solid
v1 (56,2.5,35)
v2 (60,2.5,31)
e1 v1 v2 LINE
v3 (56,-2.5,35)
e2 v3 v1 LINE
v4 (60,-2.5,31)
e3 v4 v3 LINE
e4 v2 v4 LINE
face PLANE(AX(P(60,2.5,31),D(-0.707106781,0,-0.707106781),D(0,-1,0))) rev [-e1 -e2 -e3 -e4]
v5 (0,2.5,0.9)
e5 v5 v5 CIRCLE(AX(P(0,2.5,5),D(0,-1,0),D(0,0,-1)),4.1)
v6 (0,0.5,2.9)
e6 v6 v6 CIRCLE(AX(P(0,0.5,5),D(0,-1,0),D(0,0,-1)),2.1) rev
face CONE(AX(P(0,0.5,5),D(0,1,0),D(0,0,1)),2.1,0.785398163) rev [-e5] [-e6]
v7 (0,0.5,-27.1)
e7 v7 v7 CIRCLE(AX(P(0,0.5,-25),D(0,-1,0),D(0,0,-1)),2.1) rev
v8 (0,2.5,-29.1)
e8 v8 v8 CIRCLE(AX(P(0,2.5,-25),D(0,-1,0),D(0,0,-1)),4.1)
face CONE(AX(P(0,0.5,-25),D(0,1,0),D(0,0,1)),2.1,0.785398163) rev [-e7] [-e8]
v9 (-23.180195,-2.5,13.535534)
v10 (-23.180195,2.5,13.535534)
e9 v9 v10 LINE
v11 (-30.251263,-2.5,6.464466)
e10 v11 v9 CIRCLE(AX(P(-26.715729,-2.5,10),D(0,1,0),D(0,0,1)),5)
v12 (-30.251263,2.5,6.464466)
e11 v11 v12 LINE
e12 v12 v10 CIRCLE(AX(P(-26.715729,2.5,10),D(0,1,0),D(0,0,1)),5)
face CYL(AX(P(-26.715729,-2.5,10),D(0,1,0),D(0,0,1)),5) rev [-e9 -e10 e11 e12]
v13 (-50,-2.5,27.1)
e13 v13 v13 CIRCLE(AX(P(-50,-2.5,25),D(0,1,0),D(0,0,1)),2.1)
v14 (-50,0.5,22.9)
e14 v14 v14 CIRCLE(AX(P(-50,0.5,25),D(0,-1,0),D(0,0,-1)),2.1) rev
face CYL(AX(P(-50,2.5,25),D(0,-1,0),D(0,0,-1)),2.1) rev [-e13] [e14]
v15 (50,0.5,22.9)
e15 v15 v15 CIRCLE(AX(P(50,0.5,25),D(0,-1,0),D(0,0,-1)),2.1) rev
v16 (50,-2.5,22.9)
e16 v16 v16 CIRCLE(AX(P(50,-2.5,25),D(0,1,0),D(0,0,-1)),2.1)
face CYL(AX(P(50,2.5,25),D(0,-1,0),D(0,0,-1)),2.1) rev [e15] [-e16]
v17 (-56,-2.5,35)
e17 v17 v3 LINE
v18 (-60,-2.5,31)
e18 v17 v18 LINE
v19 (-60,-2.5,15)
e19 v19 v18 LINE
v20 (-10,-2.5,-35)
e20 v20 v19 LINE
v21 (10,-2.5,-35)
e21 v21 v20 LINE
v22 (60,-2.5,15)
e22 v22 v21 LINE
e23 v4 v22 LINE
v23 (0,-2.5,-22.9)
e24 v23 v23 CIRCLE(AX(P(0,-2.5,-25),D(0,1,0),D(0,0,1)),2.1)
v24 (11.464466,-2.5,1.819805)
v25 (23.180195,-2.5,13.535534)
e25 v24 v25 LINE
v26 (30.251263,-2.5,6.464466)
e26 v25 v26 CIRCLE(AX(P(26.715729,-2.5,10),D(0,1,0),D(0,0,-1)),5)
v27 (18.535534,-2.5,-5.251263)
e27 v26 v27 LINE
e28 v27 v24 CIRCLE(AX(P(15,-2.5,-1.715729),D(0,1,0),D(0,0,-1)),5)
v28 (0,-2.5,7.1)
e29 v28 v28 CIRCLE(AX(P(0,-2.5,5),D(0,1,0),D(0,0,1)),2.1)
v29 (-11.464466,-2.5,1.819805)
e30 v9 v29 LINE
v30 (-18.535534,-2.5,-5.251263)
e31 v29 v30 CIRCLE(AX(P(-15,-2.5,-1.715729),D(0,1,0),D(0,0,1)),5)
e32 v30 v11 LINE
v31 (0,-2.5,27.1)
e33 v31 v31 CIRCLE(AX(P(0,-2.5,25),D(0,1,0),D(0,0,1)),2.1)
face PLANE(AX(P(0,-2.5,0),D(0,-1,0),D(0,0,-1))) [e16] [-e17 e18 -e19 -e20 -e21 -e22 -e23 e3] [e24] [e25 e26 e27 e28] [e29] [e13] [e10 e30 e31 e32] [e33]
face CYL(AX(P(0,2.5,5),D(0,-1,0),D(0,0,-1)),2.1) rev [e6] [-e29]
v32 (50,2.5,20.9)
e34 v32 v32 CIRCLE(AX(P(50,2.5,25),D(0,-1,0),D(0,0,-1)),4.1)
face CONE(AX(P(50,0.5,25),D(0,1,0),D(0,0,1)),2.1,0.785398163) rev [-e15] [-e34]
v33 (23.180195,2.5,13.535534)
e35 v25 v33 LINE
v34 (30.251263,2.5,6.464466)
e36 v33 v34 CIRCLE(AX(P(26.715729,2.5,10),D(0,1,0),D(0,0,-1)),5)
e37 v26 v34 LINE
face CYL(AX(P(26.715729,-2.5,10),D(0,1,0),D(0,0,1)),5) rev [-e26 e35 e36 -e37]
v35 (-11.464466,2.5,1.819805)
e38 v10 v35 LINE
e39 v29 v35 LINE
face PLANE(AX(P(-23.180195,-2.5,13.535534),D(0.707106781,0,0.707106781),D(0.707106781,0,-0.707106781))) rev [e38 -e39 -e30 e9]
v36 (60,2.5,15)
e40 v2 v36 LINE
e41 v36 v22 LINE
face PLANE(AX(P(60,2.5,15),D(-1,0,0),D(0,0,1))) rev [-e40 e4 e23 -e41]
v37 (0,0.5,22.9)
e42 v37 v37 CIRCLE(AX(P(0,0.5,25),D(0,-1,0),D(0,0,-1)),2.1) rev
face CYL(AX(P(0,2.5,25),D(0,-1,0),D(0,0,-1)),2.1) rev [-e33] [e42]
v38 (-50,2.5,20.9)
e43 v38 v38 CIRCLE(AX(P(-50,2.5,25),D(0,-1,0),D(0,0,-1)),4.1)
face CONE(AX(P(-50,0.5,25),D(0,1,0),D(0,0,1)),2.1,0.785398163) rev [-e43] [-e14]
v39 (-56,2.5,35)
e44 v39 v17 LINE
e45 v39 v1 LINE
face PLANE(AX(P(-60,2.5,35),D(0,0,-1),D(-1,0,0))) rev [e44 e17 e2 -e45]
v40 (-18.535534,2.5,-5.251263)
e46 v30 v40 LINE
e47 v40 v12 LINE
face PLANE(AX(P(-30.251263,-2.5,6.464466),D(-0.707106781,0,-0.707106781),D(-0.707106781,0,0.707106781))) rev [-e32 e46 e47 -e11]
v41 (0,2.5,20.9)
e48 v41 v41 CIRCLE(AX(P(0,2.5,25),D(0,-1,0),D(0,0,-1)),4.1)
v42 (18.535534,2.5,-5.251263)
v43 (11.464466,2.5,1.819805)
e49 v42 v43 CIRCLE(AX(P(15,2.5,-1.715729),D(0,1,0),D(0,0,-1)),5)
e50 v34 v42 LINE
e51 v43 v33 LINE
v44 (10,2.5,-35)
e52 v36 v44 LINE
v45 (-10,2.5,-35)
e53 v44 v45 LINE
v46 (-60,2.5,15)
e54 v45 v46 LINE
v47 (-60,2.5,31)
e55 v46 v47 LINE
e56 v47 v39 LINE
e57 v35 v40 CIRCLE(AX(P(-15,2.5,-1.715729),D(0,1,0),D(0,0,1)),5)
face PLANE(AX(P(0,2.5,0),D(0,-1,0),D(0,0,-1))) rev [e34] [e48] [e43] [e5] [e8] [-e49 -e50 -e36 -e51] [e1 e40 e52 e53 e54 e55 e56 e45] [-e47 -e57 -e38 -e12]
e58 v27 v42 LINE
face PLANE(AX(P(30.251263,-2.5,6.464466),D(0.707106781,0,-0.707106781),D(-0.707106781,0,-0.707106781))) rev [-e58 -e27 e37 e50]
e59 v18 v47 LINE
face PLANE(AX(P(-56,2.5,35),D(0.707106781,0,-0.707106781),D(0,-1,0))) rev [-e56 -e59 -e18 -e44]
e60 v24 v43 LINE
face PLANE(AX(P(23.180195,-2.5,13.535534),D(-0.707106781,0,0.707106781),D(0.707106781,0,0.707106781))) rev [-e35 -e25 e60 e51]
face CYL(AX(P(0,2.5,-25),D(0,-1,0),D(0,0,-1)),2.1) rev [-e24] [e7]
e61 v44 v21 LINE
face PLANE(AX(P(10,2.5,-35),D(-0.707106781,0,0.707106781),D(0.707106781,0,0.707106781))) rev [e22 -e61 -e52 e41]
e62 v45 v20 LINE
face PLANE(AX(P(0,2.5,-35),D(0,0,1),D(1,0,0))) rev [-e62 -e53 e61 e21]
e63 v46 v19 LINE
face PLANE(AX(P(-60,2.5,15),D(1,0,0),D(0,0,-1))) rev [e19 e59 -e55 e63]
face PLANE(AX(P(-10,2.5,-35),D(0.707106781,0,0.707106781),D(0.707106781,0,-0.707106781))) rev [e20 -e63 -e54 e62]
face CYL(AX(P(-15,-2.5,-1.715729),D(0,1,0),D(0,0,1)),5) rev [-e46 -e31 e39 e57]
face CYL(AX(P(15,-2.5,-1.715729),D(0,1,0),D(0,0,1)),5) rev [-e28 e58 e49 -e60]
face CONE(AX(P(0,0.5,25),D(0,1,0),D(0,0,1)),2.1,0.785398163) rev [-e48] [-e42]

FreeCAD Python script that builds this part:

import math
import FreeCAD as App
import Part
import Sketcher

V = App.Vector
Q = App.Units.Quantity


def edges_at(feature, points):
    """Names of the edges that pass closest to the given points."""
    edges = feature.Shape.Edges
    near = lambda p: min(range(len(edges)), key=lambda i: edges[i].distToShape(Part.Vertex(*p))[0])
    return sorted({f"Edge{near(p) + 1}" for p in points})


def add_polygon(sketch, points):
    """Adds a closed chain of lines whose ends are joined by coincident constraints."""
    first, n = sketch.GeometryCount, len(points)
    for a, b in zip(points, points[1:] + points[:1]):
        sketch.addGeometry(Part.LineSegment(App.Vector(*a, 0), App.Vector(*b, 0)), False)
    for i in range(n):
        sketch.addConstraint(Sketcher.Constraint("Coincident", first + i, 2, first + (i + 1) % n, 1))

doc = App.newDocument("Part")
body = doc.addObject("PartDesign::Body", "Body")

# Sketch on XZ plane
sketch1 = body.newObject("Sketcher::SketchObject", "Sketch")
sketch1.AttachmentSupport = (doc.getObject("XZ_Plane"), [""])
sketch1.MapMode = "FlatFace"
add_polygon(sketch1, [(-10, -35), (-60, 15), (-60, 35), (60, 35), (60, 15), (10, -35)])  # lines 0-5
sketch1.addGeometry(Part.Circle(V(-50, 25, 0), V(0, 0, 1), 2.1), False)  # 6
sketch1.addGeometry(Part.Circle(V(0, 25, 0), V(0, 0, 1), 2.1), False)  # 7
sketch1.addGeometry(Part.Circle(V(50, 25, 0), V(0, 0, 1), 2.1), False)  # 8
sketch1.addGeometry(Part.Circle(V(0, 5, 0), V(0, 0, 1), 2.1), False)  # 9
sketch1.addGeometry(Part.Circle(V(0, -25, 0), V(0, 0, 1), 2.1), False)  # 10
sketch1.addConstraint(Sketcher.Constraint("Vertical", 1))
sketch1.addConstraint(Sketcher.Constraint("Horizontal", 2))
sketch1.addConstraint(Sketcher.Constraint("Vertical", 3))
sketch1.addConstraint(Sketcher.Constraint("Horizontal", 5))
sketch1.addConstraint(Sketcher.Constraint("Equal", 6, 7))
sketch1.addConstraint(Sketcher.Constraint("Equal", 7, 8))
sketch1.addConstraint(Sketcher.Constraint("Equal", 8, 9))
sketch1.addConstraint(Sketcher.Constraint("Equal", 9, 10))
sketch1.addConstraint(Sketcher.Constraint("Symmetric", 7, 3, 10, 3, -1, 1))
sketch1.addConstraint(Sketcher.Constraint("Symmetric", 6, 3, 8, 3, -2))
sketch1.addConstraint(Sketcher.Constraint("Symmetric", 0, 2, 3, 2, -2))
sketch1.addConstraint(Sketcher.Constraint("PointOnObject", 7, 3, -2))
sketch1.addConstraint(Sketcher.Constraint("PointOnObject", 9, 3, -2))
sketch1.addConstraint(Sketcher.Constraint("Perpendicular", 0, 4))
sketch1.addConstraint(Sketcher.Constraint("Horizontal", 6, 3, 7, 3))
sketch1.addConstraint(Sketcher.Constraint("Equal", 5, 1))
sketch1.addConstraint(Sketcher.Constraint("Equal", 0, 4))
sketch1.addConstraint(Sketcher.Constraint("Diameter", 6, Q("4.2 mm")))
sketch1.addConstraint(Sketcher.Constraint("DistanceX", 2, 1, 2, 2, Q("120 mm")))
sketch1.addConstraint(Sketcher.Constraint("DistanceX", 5, 2, 5, 1, Q("20 mm")))
sketch1.addConstraint(Sketcher.Constraint("DistanceX", 6, 3, -1, 1, Q("50 mm")))
sketch1.addConstraint(Sketcher.Constraint("DistanceY", -1, 1, 6, 3, Q("25 mm")))
sketch1.addConstraint(Sketcher.Constraint("DistanceY", -1, 1, 9, 3, Q("5 mm")))
sketch1.addConstraint(Sketcher.Constraint("DistanceY", -1, 1, 0, 2, Q("15 mm")))
pad1 = body.newObject("PartDesign::Pad", "Pad")
pad1.Profile = sketch1
pad1.Length = 5
pad1.Midplane = True
doc.recompute()

chamfer = body.newObject("PartDesign::Chamfer", "Chamfer")
chamfer.Base = (pad1, edges_at(pad1, [
    (-50, 2.5, 22.9),
    (0, 2.5, -27.1),
    (0, 2.5, 2.9),
    (0, 2.5, 22.9),
    (50, 2.5, 27.1),
]))
chamfer.Size = 2
doc.recompute()

chamfer2 = body.newObject("PartDesign::Chamfer", "Chamfer001")
chamfer2.Base = (chamfer, edges_at(chamfer, [(60, 0, 35), (-60, 0, 35)]))
chamfer2.Size = 4

# Sketch on XZ plane
sketch2 = body.newObject("Sketcher::SketchObject", "Sketch001")
sketch2.AttachmentSupport = (doc.getObject("XZ_Plane"), [""])
sketch2.MapMode = "FlatFace"
sketch2.AttachmentOffset = App.Placement(V(0, 0, -2.5), App.Rotation())
sketch2.addGeometry(Part.LineSegment(V(-19, -5, 0), V(-30, 6, 0)), False)
sketch2.addGeometry(Part.ArcOfCircle(Part.Circle(V(-27, 10, 0), V(0, 0, 1), 5), math.radians(45), math.radians(225)), False)
sketch2.addGeometry(Part.LineSegment(V(-23, 14, 0), V(-11, 2, 0)), False)
sketch2.addGeometry(Part.ArcOfCircle(Part.Circle(V(-15, -2, 0), V(0, 0, 1), 5), math.radians(-135), math.radians(45)), False)
sketch2.addGeometry(Part.LineSegment(V(30, 6, 0), V(19, -5, 0)), False)
sketch2.addGeometry(Part.ArcOfCircle(Part.Circle(V(15, -2, 0), V(0, 0, 1), 5), math.radians(135), math.radians(315)), False)
sketch2.addGeometry(Part.LineSegment(V(11, 2, 0), V(23, 14, 0)), False)
sketch2.addGeometry(Part.ArcOfCircle(Part.Circle(V(27, 10, 0), V(0, 0, 1), 5), math.radians(-45), math.radians(135)), False)
sketch2.addConstraint(Sketcher.Constraint("Tangent", 0, 2, 1, 2))
sketch2.addConstraint(Sketcher.Constraint("Tangent", 1, 1, 2, 1))
sketch2.addConstraint(Sketcher.Constraint("Tangent", 2, 2, 3, 2))
sketch2.addConstraint(Sketcher.Constraint("Tangent", 3, 1, 0, 1))
sketch2.addConstraint(Sketcher.Constraint("Tangent", 4, 2, 5, 2))
sketch2.addConstraint(Sketcher.Constraint("Tangent", 5, 1, 6, 1))
sketch2.addConstraint(Sketcher.Constraint("Tangent", 6, 2, 7, 2))
sketch2.addConstraint(Sketcher.Constraint("Tangent", 7, 1, 4, 1))
sketch2.addConstraint(Sketcher.Constraint("Equal", 1, 3))
sketch2.addConstraint(Sketcher.Constraint("Equal", 3, 5))
sketch2.addConstraint(Sketcher.Constraint("Equal", 5, 7))
sketch2.addConstraint(Sketcher.Constraint("Symmetric", 3, 3, 5, 3, -2))
sketch2.addConstraint(Sketcher.Constraint("Symmetric", 1, 3, 7, 3, -2))
sketch2.addConstraint(Sketcher.Constraint("Perpendicular", 2, 4))
sketch2.addConstraint(Sketcher.Constraint("Radius", 1, Q("5 mm")))
sketch2.addConstraint(Sketcher.Constraint("DistanceY", -1, 1, 1, 3, Q("10 mm")))
sketch2.addConstraint(Sketcher.Constraint("DistanceX", 3, 3, -1, 1, Q("15 mm")))
sketch2.addConstraint(Sketcher.Constraint("DistanceX", 1, 3, -1, 1, Q("26.715729 mm")))
pocket1 = body.newObject("PartDesign::Pocket", "Pocket")
pocket1.Profile = sketch2
pocket1.Type = "ThroughAll"
pocket1.Reversed = True

doc.recompute()
